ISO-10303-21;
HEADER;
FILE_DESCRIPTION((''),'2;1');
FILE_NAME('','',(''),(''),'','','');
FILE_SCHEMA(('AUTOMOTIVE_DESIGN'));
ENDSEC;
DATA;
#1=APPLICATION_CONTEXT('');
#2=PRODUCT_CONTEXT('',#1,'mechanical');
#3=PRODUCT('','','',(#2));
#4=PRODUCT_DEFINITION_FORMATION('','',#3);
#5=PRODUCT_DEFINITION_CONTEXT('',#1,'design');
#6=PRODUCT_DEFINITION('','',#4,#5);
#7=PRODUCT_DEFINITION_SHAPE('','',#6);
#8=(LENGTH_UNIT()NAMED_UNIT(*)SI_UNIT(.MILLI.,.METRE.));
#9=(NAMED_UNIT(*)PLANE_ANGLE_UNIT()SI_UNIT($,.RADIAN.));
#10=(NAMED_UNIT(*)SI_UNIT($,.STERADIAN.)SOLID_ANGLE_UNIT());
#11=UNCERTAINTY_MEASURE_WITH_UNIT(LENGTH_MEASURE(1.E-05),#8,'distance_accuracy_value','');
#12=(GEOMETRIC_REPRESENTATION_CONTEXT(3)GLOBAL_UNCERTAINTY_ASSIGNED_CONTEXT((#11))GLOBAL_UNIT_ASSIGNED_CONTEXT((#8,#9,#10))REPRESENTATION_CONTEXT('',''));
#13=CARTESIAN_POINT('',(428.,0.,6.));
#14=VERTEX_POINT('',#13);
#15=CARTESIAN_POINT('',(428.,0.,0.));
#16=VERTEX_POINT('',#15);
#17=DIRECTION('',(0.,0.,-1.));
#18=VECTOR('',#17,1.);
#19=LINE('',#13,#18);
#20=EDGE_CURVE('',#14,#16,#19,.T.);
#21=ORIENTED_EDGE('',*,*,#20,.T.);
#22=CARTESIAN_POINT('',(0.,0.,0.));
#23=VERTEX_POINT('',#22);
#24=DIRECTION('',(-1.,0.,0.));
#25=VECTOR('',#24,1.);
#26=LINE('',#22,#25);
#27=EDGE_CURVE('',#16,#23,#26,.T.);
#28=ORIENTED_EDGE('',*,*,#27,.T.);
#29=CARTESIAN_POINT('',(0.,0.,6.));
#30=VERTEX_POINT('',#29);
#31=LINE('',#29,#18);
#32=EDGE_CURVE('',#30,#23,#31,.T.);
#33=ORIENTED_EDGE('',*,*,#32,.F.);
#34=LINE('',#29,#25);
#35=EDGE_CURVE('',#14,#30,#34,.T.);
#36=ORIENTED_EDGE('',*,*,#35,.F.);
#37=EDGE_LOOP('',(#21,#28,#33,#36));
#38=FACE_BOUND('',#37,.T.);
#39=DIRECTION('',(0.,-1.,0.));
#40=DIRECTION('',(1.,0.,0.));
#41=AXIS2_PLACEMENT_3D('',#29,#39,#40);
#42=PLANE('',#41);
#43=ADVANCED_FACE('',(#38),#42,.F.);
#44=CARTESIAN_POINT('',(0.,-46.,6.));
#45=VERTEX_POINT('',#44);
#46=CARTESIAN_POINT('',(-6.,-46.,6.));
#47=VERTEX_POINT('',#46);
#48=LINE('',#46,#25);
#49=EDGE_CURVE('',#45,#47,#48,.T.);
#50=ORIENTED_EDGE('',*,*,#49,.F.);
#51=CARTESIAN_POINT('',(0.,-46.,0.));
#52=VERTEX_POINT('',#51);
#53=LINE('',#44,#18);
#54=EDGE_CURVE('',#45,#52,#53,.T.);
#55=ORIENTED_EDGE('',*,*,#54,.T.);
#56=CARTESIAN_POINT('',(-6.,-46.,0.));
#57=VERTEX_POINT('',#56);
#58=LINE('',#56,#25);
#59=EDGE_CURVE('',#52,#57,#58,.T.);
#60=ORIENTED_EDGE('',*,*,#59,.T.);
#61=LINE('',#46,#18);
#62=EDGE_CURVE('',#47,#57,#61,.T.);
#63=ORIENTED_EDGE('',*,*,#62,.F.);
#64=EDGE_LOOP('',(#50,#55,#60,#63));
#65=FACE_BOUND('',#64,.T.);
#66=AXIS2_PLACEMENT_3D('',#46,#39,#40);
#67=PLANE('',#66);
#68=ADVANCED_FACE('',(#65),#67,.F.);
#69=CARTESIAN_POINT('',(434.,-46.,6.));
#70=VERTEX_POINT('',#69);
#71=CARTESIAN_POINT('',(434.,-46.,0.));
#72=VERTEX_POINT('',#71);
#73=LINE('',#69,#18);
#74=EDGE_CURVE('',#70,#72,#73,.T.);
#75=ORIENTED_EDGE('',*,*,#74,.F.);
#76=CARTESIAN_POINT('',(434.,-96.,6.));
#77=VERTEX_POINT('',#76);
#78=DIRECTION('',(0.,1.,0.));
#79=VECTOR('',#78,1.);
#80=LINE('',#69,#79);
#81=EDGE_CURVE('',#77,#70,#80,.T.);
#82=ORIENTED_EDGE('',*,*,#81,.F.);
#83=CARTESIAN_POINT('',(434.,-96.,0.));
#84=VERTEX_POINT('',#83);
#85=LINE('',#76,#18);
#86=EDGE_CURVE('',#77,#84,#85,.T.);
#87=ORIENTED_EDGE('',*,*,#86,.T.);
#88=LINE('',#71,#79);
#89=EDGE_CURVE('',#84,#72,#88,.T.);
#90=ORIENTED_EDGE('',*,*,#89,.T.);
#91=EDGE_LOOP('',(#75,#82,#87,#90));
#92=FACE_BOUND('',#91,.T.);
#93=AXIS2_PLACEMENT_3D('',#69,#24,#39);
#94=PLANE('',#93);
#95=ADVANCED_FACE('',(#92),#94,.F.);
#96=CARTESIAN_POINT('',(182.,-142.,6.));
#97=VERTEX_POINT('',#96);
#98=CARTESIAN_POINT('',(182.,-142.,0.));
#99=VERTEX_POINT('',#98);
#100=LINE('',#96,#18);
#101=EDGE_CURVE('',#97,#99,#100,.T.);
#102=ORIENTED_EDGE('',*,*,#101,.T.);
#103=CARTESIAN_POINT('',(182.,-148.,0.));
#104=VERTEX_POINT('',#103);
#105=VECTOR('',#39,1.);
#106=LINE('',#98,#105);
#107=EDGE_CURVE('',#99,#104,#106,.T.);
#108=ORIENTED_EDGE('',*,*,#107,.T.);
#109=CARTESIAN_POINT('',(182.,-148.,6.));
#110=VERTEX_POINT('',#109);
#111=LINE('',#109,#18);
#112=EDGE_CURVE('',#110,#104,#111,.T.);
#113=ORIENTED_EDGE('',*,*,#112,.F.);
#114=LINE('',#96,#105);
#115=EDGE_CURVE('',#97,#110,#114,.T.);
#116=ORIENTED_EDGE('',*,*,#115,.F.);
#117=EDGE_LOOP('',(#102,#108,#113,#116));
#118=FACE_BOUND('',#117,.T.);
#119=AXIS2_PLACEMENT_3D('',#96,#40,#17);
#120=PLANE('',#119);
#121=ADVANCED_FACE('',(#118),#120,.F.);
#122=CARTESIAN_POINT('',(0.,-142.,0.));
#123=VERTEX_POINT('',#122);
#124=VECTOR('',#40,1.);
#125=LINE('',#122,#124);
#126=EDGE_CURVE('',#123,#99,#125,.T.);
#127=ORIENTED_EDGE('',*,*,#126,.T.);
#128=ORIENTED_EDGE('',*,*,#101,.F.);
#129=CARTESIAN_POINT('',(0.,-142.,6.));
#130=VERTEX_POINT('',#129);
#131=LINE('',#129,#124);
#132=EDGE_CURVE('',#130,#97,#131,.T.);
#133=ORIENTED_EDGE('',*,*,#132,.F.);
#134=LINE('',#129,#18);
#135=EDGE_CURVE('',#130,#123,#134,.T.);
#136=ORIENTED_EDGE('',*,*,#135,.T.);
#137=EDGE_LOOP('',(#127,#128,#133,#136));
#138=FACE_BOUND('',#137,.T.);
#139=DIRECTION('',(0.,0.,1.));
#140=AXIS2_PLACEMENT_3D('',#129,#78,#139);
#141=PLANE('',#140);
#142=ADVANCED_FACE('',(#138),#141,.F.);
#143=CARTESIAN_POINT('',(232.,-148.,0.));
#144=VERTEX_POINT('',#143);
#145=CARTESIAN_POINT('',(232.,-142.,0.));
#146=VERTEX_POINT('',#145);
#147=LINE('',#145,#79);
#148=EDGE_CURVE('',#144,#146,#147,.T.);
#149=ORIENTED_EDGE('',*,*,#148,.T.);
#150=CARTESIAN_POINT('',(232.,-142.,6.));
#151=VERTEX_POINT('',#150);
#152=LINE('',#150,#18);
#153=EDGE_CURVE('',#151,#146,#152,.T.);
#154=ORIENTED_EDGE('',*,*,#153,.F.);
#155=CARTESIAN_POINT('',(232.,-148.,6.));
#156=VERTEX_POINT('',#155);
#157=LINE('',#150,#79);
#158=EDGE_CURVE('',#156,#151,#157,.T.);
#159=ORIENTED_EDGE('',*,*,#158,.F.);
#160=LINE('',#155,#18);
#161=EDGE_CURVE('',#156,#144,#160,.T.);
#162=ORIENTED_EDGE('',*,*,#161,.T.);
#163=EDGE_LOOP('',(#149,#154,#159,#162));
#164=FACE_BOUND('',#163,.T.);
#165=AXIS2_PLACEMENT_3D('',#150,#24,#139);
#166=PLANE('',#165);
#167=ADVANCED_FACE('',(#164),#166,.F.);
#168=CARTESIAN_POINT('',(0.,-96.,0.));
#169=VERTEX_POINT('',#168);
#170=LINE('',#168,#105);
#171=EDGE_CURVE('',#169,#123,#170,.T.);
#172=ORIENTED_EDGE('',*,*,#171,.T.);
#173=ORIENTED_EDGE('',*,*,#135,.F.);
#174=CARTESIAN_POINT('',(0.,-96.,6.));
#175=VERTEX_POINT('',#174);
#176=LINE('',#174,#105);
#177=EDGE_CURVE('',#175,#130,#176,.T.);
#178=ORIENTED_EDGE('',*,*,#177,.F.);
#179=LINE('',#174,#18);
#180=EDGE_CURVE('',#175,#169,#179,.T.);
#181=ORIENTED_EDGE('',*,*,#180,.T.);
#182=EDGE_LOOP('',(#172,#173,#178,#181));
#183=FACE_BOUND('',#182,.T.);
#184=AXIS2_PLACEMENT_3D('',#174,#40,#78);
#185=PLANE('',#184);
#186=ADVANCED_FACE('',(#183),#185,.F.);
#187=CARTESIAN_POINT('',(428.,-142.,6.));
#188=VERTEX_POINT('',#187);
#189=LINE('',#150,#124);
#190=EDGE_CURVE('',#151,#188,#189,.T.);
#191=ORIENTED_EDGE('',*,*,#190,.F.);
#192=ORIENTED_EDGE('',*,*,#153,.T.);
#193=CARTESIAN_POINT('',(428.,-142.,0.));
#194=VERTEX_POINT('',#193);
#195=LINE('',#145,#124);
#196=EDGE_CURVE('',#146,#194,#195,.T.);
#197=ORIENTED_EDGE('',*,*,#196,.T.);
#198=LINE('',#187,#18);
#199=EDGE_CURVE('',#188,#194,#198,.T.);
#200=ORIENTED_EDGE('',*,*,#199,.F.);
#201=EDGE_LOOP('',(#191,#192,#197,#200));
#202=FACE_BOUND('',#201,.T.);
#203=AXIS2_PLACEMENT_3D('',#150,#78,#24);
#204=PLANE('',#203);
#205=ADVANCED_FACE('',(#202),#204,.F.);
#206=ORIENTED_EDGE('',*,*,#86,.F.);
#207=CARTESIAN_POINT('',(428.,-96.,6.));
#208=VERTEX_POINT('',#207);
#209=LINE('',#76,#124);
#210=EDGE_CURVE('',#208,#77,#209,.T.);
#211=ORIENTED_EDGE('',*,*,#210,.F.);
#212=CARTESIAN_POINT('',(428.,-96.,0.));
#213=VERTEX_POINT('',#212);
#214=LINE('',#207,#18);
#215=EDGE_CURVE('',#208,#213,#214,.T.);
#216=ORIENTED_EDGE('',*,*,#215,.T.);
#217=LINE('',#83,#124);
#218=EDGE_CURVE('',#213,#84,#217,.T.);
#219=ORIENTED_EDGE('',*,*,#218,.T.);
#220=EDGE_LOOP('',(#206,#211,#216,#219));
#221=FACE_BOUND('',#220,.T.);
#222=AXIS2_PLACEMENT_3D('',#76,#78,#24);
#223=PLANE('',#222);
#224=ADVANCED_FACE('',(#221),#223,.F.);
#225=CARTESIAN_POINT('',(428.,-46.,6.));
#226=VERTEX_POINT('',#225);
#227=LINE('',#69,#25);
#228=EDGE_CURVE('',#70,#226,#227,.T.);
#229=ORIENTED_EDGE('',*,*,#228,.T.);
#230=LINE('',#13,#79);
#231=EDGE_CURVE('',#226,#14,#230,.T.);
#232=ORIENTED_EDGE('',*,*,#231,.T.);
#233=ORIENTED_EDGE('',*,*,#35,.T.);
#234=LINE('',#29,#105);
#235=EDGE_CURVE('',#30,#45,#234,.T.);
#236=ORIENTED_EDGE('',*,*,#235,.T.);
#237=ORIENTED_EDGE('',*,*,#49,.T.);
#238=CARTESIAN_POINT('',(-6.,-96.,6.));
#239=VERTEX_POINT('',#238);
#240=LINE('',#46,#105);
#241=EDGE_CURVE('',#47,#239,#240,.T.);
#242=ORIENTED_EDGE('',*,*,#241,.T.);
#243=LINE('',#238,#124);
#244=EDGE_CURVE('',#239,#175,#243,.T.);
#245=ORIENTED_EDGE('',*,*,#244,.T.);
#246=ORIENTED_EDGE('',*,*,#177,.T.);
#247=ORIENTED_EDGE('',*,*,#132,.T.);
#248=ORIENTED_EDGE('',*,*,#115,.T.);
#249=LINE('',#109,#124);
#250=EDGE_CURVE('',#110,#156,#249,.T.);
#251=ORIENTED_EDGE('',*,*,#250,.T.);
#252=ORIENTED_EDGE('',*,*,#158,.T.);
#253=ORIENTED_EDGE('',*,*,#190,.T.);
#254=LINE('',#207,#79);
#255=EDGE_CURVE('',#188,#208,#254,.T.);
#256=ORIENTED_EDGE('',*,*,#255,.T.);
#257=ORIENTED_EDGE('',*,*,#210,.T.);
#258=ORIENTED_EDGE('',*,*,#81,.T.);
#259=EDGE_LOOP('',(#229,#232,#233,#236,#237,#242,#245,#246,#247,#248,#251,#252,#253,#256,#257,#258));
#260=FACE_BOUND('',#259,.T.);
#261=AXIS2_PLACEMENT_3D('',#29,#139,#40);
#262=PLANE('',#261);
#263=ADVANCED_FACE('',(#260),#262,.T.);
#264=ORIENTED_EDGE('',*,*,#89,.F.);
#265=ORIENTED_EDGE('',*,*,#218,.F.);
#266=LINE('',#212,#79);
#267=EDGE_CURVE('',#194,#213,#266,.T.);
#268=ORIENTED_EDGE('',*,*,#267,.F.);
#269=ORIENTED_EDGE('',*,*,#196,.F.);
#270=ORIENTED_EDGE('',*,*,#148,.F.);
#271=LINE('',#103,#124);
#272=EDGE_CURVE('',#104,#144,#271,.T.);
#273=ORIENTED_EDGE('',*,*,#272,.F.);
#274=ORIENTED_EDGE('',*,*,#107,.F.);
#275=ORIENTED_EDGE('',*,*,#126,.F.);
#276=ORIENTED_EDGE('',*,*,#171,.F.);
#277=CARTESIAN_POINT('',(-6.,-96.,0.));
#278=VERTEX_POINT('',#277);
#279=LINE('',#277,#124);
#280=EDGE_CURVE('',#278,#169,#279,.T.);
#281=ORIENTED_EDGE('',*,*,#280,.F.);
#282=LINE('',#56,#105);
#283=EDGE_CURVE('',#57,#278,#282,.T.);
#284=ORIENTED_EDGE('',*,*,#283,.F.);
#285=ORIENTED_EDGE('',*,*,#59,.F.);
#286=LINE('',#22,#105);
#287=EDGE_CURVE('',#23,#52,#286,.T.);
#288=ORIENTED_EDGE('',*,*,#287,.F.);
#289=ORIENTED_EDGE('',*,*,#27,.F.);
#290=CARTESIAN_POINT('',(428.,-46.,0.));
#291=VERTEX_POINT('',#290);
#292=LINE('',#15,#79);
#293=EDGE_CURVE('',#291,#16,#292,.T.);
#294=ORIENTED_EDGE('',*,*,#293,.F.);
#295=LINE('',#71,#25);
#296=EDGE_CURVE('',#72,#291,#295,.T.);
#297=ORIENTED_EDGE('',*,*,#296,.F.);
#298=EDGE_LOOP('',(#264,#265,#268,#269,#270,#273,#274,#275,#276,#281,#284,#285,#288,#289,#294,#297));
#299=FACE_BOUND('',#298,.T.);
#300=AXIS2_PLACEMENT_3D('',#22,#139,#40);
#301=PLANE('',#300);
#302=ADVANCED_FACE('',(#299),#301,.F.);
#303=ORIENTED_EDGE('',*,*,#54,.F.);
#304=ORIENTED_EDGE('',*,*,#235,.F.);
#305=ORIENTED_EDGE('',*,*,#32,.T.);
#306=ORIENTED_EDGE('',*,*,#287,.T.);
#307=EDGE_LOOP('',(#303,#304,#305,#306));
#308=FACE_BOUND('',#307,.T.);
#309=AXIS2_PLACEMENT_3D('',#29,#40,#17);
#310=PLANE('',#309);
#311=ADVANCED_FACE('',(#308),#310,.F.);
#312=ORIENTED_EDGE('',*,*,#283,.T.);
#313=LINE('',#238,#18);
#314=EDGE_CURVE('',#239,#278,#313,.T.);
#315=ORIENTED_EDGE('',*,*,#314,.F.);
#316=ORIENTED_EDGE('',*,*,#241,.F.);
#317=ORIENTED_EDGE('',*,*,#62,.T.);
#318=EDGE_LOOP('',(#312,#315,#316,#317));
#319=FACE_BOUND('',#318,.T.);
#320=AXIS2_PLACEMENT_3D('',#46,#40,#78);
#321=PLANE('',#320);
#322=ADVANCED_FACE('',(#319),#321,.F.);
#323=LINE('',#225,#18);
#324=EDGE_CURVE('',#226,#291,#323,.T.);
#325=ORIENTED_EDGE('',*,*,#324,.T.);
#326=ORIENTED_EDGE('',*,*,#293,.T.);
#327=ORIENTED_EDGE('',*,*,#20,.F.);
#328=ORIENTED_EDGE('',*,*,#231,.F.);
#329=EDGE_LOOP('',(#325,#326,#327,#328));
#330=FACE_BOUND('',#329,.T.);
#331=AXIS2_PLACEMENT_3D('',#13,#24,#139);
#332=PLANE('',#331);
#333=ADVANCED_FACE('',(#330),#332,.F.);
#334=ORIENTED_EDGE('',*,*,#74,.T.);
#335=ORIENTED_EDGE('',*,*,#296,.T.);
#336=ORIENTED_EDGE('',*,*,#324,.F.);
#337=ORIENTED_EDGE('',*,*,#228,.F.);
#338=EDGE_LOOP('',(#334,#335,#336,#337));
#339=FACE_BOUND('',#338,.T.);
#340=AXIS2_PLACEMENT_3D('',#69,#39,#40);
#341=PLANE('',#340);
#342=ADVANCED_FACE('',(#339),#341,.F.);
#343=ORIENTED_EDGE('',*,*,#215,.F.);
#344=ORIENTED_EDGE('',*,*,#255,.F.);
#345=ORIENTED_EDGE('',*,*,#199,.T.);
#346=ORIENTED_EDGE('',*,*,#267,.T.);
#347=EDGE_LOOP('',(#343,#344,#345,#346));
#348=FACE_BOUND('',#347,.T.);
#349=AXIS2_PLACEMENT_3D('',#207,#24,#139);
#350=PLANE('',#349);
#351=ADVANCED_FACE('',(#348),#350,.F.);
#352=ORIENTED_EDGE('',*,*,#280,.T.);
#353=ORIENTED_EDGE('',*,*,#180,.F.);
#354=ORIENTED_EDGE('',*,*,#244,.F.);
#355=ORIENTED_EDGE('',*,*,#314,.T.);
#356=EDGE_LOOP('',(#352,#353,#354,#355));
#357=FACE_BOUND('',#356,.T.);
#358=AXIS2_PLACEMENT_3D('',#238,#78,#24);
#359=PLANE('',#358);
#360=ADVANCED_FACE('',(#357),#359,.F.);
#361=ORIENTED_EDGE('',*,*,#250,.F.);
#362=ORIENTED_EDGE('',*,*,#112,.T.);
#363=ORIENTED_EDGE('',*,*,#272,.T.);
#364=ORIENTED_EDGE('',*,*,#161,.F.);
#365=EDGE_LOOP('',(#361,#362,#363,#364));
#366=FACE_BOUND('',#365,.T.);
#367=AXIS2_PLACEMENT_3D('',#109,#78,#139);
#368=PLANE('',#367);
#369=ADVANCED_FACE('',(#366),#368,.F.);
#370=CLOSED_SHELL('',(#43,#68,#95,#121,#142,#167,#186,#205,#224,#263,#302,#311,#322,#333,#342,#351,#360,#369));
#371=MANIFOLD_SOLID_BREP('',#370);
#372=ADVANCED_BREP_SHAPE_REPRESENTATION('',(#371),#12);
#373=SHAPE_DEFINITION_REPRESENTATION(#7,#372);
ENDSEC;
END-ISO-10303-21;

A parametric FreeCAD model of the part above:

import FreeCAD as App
import Part
import Sketcher

doc = App.newDocument("Part")
body = doc.addObject("PartDesign::Body", "Body")

sketch1 = body.newObject("Sketcher::SketchObject", "Sketch")
sketch1.AttachmentSupport = (doc.getObject("XY_Plane"), [""])
sketch1.MapMode = "FlatFace"
sketch1.addGeometry([
    Part.LineSegment(App.Vector(428, 0, 0), App.Vector(0, 0, 0)),
    Part.LineSegment(App.Vector(0, 0, 0), App.Vector(0, -46, 0)),
    Part.LineSegment(App.Vector(0, -46, 0), App.Vector(-6, -46, 0)),
    Part.LineSegment(App.Vector(-6, -46, 0), App.Vector(-6, -96, 0)),
    Part.LineSegment(App.Vector(-6, -96, 0), App.Vector(0, -96, 0)),
    Part.LineSegment(App.Vector(0, -96, 0), App.Vector(0, -142, 0)),
    Part.LineSegment(App.Vector(0, -142, 0), App.Vector(182, -142, 0)),
    Part.LineSegment(App.Vector(182, -142, 0), App.Vector(182, -148, 0)),
    Part.LineSegment(App.Vector(182, -148, 0), App.Vector(232, -148, 0)),
    Part.LineSegment(App.Vector(232, -148, 0), App.Vector(232, -142, 0)),
    Part.LineSegment(App.Vector(232, -142, 0), App.Vector(428, -142, 0)),
    Part.LineSegment(App.Vector(428, -142, 0), App.Vector(428, -96, 0)),
    Part.LineSegment(App.Vector(428, -96, 0), App.Vector(434, -96, 0)),
    Part.LineSegment(App.Vector(434, -96, 0), App.Vector(434, -46, 0)),
    Part.LineSegment(App.Vector(434, -46, 0), App.Vector(428, -46, 0)),
    Part.LineSegment(App.Vector(428, -46, 0), App.Vector(428, 0, 0)),
], False)
sketch1.addConstraint([
    Sketcher.Constraint("Coincident", 0, 2, 1, 1),
    Sketcher.Constraint("Coincident", 1, 2, 2, 1),
    Sketcher.Constraint("Coincident", 2, 2, 3, 1),
    Sketcher.Constraint("Coincident", 3, 2, 4, 1),
    Sketcher.Constraint("Coincident", 4, 2, 5, 1),
    Sketcher.Constraint("Coincident", 5, 2, 6, 1),
    Sketcher.Constraint("Coincident", 6, 2, 7, 1),
    Sketcher.Constraint("Coincident", 7, 2, 8, 1),
    Sketcher.Constraint("Coincident", 8, 2, 9, 1),
    Sketcher.Constraint("Coincident", 9, 2, 10, 1),
    Sketcher.Constraint("Coincident", 10, 2, 11, 1),
    Sketcher.Constraint("Coincident", 11, 2, 12, 1),
    Sketcher.Constraint("Coincident", 12, 2, 13, 1),
    Sketcher.Constraint("Coincident", 13, 2, 14, 1),
    Sketcher.Constraint("Coincident", 14, 2, 15, 1),
    Sketcher.Constraint("Coincident", 15, 2, 0, 1),
    Sketcher.Constraint("Horizontal", 0),
    Sketcher.Constraint("Vertical", 1),
    Sketcher.Constraint("Horizontal", 2),
    Sketcher.Constraint("Vertical", 3),
    Sketcher.Constraint("Horizontal", 4),
    Sketcher.Constraint("Vertical", 5),
    Sketcher.Constraint("Horizontal", 6),
    Sketcher.Constraint("Vertical", 7),
    Sketcher.Constraint("Horizontal", 8),
    Sketcher.Constraint("Vertical", 9),
    Sketcher.Constraint("Horizontal", 10),
    Sketcher.Constraint("Vertical", 11),
    Sketcher.Constraint("Horizontal", 12),
    Sketcher.Constraint("Vertical", 13),
    Sketcher.Constraint("Horizontal", 14),
    Sketcher.Constraint("Vertical", 15),
    Sketcher.Constraint("Coincident", 0, 2, -1, 1),
    Sketcher.Constraint("PointOnObject", 4, 2, -2),
    Sketcher.Constraint("Horizontal", 6, 2, 9, 2),
    Sketcher.Constraint("Horizontal", 4, 2, 11, 2),
    Sketcher.Constraint("Horizontal", 2, 2, 13, 2),
    Sketcher.Constraint("Vertical", 11, 2, 14, 2),
    Sketcher.Constraint("Equal", 4, 12),
    Sketcher.Constraint("Equal", 8, 3),
    Sketcher.Constraint("Equal", 1, 5),
    Sketcher.Constraint("Equal", 14, 7),
    Sketcher.Constraint("DistanceX", 0, 2, 0, 1, 428.0),
    Sketcher.Constraint("DistanceX", 2, 2, 2, 1, 6.0),
    Sketcher.Constraint("DistanceX", 6, 1, 6, 2, 182.0),
    Sketcher.Constraint("DistanceX", 8, 1, 8, 2, 50.0),
    Sketcher.Constraint("DistanceY", 1, 2, 1, 1, 46.0),
])
pad1 = body.newObject("PartDesign::Pad", "Pad")
pad1.Profile = sketch1
pad1.Length = 6

doc.recompute()
